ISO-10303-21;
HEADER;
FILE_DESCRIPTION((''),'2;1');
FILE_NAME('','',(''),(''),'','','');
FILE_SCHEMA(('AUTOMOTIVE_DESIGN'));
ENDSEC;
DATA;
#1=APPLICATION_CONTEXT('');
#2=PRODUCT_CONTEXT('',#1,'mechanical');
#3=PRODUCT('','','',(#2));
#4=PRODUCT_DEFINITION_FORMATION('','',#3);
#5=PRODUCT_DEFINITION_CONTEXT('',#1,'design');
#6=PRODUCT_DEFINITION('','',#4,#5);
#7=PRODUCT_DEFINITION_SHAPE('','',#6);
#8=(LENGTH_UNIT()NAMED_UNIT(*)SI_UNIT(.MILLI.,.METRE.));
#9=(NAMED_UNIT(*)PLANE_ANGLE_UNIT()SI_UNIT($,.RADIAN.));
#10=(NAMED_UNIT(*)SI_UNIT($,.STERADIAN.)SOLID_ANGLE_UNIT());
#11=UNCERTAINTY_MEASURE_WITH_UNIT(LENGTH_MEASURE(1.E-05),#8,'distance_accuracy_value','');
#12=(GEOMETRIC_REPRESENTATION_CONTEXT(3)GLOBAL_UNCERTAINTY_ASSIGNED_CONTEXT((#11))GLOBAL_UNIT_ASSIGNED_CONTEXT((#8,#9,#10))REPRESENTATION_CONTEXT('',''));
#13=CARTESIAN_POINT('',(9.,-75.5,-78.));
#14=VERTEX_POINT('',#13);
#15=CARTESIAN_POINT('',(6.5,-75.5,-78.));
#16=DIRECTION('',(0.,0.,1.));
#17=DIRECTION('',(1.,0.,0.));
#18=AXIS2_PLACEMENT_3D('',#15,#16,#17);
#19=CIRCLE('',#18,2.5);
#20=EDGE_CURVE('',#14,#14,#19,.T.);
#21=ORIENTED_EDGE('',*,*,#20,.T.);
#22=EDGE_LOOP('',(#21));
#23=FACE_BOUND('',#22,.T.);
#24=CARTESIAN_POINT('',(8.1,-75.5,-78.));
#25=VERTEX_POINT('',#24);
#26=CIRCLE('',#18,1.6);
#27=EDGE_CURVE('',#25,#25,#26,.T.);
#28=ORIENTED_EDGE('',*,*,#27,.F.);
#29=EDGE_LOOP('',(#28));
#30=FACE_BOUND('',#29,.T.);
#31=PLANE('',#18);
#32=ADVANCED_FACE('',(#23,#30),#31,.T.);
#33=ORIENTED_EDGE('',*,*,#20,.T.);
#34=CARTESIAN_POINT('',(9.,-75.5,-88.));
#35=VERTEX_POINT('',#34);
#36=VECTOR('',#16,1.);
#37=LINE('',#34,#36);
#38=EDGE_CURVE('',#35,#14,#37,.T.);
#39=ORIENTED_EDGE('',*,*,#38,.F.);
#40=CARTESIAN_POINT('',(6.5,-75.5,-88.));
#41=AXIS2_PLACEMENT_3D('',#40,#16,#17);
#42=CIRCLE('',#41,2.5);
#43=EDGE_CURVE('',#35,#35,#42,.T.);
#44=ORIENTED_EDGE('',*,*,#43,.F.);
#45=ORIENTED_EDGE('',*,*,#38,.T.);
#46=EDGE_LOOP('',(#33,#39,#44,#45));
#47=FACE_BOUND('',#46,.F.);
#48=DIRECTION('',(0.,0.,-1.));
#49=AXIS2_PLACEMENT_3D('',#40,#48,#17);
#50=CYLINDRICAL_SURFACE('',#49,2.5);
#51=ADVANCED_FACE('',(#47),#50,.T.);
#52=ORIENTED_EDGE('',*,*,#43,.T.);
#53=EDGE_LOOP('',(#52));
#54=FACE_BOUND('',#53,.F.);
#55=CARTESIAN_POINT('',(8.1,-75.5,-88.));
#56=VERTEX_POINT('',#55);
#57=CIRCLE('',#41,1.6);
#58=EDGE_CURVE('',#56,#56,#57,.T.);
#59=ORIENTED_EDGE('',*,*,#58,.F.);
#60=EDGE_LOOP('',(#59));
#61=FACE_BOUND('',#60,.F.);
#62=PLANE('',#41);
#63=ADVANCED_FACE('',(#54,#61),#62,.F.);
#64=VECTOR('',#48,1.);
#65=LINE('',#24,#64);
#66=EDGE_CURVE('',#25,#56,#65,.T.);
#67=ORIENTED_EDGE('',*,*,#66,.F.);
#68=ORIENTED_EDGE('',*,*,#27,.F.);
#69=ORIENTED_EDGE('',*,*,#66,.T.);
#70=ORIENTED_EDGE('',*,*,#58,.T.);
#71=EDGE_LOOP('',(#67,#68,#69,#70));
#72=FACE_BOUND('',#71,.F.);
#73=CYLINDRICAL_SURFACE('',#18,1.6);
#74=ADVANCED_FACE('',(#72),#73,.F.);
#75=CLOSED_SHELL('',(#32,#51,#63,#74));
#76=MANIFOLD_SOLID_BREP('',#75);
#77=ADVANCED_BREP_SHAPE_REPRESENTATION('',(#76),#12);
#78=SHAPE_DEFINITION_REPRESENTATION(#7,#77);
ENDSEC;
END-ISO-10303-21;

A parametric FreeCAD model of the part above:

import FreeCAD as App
import Part
import Sketcher

doc = App.newDocument("Part")
body = doc.addObject("PartDesign::Body", "Body")

# Sketch on XY plane
sketch1 = doc.addObject("Sketcher::SketchObject", "Sketch")
body.addObject(sketch1)
sketch1.AttachmentSupport = (doc.XY_Plane, [""])
sketch1.MapMode = "FlatFace"
sketch1.AttachmentOffset = App.Placement(App.Vector(0, 0, 10), App.Rotation())
sketch1.addGeometry(Part.Circle(App.Vector(0, 0, 0), App.Vector(0, 0, 1), 1.6), False)
sketch1.addConstraint([
    Sketcher.Constraint("Coincident", 0, 3, -1, 1),
    Sketcher.Constraint("Diameter", 0, 3.2),
])
pad1 = doc.addObject("PartDesign::Pad", "Pad")
body.addObject(pad1)
pad1.Profile = sketch1
pad1.Length = 10
pad1.Reversed = True
body2 = doc.addObject("PartDesign::Body", "Body001")

# Sketch on XY plane
sketch2 = doc.addObject("Sketcher::SketchObject", "Sketch001")
body2.addObject(sketch2)
sketch2.AttachmentSupport = (doc.getObject("XY_Plane001"), [""])
sketch2.MapMode = "FlatFace"
sketch2.addGeometry(Part.Circle(App.Vector(0, 0, 0), App.Vector(0, 0, 1), 2.5), False)
sketch2.addConstraint([
    Sketcher.Constraint("Coincident", 0, 3, -1, 1),
    Sketcher.Constraint("Diameter", 0, 5.0),
])
pad2 = doc.addObject("PartDesign::Pad", "Pad001")
body2.addObject(pad2)
pad2.Profile = sketch2
pad2.Length = 10
doc.recompute()

boolean = doc.addObject("PartDesign::Boolean", "Boolean")
body2.addObject(boolean)
boolean.Type = "Cut"
boolean.addObjects([body])
body3 = doc.addObject("PartDesign::Body", "Body002")
doc.recompute()

body2.Placement = App.Placement(App.Vector(6.5, -75.5, -88), App.Rotation(App.Vector(0, 0, 1), 0))
boolean2 = doc.addObject("PartDesign::Boolean", "Boolean001")
body3.addObject(boolean2)
boolean2.Type = "Fuse"
boolean2.addObjects([body2])

doc.recompute()
